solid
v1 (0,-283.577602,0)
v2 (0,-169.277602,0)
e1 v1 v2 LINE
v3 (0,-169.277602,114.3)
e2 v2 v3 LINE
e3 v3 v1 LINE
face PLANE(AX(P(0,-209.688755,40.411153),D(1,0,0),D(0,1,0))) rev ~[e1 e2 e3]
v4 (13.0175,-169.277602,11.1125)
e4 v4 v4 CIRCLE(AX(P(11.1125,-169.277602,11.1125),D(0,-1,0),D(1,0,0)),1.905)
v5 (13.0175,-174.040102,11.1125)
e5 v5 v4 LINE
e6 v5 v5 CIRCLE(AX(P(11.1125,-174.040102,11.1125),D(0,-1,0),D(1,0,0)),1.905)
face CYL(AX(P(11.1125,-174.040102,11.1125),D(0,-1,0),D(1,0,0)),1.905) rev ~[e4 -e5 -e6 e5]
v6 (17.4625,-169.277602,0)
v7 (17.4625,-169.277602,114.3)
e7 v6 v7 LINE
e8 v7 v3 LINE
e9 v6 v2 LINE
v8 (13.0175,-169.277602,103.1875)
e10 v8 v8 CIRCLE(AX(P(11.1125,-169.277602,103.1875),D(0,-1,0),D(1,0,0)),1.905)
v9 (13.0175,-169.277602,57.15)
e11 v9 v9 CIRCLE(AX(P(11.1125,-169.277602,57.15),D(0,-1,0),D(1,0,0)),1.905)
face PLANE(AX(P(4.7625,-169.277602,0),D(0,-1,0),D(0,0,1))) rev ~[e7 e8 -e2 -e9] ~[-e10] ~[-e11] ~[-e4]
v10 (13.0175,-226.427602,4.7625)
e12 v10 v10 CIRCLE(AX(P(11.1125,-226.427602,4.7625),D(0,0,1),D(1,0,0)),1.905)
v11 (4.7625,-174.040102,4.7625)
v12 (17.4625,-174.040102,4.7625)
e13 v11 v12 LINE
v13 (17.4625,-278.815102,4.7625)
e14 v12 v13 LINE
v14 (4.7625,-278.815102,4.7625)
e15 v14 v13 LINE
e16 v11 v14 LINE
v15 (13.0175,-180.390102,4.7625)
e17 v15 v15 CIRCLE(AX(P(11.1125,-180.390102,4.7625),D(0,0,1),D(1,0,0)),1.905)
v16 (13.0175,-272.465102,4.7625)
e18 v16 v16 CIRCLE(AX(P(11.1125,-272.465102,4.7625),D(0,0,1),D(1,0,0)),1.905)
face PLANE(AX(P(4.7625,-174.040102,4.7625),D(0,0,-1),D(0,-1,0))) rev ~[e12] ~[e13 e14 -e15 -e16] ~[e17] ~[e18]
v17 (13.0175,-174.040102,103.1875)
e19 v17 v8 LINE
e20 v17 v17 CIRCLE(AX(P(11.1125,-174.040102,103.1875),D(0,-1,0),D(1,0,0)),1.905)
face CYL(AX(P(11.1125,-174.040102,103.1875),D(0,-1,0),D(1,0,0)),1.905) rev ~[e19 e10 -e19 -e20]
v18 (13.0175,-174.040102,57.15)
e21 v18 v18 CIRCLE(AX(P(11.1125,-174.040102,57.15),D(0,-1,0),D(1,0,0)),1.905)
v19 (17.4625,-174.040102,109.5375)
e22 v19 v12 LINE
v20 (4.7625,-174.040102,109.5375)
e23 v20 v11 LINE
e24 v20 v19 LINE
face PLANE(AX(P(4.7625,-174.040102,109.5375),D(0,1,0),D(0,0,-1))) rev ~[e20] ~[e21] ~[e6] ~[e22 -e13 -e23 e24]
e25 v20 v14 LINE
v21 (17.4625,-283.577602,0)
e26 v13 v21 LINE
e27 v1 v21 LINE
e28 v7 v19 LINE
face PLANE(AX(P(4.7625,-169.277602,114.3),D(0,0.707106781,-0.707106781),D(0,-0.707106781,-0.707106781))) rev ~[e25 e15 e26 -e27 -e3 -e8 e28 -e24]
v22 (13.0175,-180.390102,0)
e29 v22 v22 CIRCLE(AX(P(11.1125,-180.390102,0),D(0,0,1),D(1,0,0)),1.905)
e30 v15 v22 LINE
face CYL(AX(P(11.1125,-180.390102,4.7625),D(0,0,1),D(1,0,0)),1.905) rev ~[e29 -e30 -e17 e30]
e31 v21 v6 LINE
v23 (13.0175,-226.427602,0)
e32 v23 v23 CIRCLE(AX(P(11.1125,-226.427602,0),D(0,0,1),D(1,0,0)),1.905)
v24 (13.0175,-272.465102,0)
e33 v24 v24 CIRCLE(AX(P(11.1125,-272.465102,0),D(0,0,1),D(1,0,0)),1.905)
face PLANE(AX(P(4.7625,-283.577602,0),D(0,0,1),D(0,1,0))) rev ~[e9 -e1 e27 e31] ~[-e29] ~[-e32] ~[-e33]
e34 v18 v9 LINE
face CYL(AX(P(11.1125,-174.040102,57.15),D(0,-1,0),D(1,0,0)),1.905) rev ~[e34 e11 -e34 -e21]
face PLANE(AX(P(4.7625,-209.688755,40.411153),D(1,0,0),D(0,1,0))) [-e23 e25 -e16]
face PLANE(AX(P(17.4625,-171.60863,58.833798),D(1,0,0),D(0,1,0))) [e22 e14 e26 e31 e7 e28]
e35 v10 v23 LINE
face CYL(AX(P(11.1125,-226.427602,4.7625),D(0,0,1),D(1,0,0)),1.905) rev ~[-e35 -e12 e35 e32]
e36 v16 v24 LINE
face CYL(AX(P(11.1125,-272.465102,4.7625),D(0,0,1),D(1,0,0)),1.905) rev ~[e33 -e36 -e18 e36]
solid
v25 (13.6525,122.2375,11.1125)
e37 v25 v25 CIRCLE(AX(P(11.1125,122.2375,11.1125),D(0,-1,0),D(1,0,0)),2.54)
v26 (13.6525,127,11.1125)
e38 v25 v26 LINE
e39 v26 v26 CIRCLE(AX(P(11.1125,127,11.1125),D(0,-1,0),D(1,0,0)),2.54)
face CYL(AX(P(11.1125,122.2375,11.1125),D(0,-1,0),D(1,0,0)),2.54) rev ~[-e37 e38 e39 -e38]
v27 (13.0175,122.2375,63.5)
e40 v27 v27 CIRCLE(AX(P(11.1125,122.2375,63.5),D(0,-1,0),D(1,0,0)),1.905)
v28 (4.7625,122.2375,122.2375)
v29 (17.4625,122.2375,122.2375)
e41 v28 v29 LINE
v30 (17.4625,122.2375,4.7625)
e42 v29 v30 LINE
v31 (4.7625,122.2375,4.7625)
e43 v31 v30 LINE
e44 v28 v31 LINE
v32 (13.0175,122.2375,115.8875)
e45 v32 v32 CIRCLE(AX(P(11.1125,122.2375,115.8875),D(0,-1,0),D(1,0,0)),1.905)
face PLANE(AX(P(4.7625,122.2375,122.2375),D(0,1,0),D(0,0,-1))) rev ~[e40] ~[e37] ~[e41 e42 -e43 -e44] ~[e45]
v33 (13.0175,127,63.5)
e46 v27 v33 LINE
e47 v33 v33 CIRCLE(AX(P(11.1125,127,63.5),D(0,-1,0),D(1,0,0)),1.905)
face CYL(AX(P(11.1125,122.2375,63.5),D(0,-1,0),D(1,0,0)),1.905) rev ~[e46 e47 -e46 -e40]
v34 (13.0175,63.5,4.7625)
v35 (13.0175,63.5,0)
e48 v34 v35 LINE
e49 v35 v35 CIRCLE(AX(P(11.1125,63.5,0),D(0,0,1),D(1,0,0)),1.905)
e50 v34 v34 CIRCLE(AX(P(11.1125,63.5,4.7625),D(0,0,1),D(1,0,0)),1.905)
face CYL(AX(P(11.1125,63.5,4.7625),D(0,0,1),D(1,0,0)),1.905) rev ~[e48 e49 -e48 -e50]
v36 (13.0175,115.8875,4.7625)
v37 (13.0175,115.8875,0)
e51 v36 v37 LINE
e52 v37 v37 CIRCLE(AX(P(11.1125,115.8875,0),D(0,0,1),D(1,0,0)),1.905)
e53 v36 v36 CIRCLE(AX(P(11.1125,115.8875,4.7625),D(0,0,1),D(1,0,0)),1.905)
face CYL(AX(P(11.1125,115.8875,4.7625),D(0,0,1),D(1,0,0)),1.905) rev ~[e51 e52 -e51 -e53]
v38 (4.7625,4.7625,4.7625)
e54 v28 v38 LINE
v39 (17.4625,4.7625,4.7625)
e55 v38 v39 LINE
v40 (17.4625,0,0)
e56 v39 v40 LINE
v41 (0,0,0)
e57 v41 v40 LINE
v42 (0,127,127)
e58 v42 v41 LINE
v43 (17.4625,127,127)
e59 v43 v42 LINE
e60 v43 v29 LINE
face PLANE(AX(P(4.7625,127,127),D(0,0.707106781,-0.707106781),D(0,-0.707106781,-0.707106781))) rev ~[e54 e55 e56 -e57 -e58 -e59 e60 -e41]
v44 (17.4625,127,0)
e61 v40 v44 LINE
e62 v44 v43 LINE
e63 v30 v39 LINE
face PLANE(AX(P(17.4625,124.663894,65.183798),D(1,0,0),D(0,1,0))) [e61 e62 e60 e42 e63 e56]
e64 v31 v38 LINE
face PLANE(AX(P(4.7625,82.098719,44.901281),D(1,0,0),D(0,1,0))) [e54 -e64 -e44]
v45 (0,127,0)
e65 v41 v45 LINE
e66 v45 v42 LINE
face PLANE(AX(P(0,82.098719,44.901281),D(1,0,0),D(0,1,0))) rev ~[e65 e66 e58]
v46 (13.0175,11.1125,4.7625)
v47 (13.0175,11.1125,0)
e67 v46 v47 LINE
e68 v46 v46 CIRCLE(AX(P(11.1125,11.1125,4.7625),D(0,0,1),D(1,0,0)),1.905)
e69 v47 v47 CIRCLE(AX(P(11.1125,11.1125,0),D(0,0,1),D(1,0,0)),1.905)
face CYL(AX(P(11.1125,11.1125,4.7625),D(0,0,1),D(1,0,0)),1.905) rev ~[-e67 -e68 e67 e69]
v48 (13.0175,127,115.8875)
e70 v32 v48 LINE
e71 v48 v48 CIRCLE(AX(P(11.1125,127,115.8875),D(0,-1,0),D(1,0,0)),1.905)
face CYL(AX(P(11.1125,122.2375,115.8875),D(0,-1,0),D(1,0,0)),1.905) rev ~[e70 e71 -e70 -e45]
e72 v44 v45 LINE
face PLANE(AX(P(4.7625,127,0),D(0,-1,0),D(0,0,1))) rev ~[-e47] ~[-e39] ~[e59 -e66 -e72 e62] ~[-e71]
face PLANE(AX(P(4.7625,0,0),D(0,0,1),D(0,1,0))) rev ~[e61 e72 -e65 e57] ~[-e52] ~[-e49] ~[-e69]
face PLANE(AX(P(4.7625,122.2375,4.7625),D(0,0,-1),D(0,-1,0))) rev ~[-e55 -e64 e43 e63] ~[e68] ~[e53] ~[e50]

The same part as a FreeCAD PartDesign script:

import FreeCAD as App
import Part
import Sketcher
from FreeCAD import Vector
Q = App.Units.Quantity


def add_polygon(sketch, points):
    """Adds a closed chain of lines whose ends are joined by coincident constraints."""
    first, n = sketch.GeometryCount, len(points)
    for a, b in zip(points, points[1:] + points[:1]):
        sketch.addGeometry(Part.LineSegment(App.Vector(*a, 0), App.Vector(*b, 0)), False)
    for i in range(n):
        sketch.addConstraint(Sketcher.Constraint("Coincident", first + i, 2, first + (i + 1) % n, 1))

doc = App.newDocument("Part")
params = doc.addObject("Spreadsheet::Sheet", "Params")
for row, (alias, value) in enumerate([
    ("sketch1_width", "5 in"),
    ("pad1_length", "0.1875 in"),
    ("sketch2_width", "5 in"),
    ("sketch2_width2", "4.625 in"),
    ("pad2_length", "0.5 in"),
    ("sketch3_diameter", "0.15 in"),
    ("sketch4_diameter", "0.2 in"),
    ("sketch4_diameter2", "0.15 in"),
    ("sketch5_width", "4.5 in"),
    ("pad3_length", "0.1875 in"),
    ("sketch6_width", "4.5 in"),
    ("sketch6_width2", "4.125 in"),
    ("pad4_length", "0.5 in"),
    ("sketch7_diameter", "0.15 in"),
    ("sketch8_diameter", "0.15 in"),
], start=1):
    params.set(f"A{row}", alias)
    params.set(f"B{row}", "=" + value)
    params.setAlias(f"B{row}", alias)

body = doc.addObject("PartDesign::Body", "Body")

# Sketch on YZ plane
sketch1 = doc.addObject("Sketcher::SketchObject", "Sketch")
body.addObject(sketch1)
sketch1.AttachmentSupport = (doc.YZ_Plane, [""])
sketch1.MapMode = "FlatFace"
add_polygon(sketch1, [(127, 127), (0, 0), (127, 0)])  # lines 0-2
sketch1.addConstraint([
    Sketcher.Constraint("Horizontal", 1),
    Sketcher.Constraint("Vertical", 2),
    Sketcher.Constraint("Coincident", 0, 2, -1, 1),
    Sketcher.Constraint("Equal", 1, 2),
    Sketcher.Constraint("DistanceX", 1, 1, 1, 2, Q("5 in")),
])
sketch1.setExpression("Constraints[7]", "Params.sketch1_width")
pad1 = doc.addObject("PartDesign::Pad", "Pad")
body.addObject(pad1)
pad1.Profile = sketch1
pad1.setExpression("Length", "Params.pad1_length")

# Sketch on YZ plane
sketch2 = doc.addObject("Sketcher::SketchObject", "Sketch001")
body.addObject(sketch2)
sketch2.AttachmentSupport = (doc.YZ_Plane, [""])
sketch2.MapMode = "FlatFace"
sketch2.AttachmentOffset = App.Placement(Vector(0, 0, 0.1875 * 25.4), App.Rotation())
add_polygon(sketch2, [(127, 127), (122, 122), (122, 5), (5, 5), (0, 0), (127, 0)])  # lines 0-5
sketch2.addConstraint([
    Sketcher.Constraint("Vertical", 1),
    Sketcher.Constraint("Horizontal", 2),
    Sketcher.Constraint("Horizontal", 4),
    Sketcher.Constraint("Vertical", 5),
    Sketcher.Constraint("Coincident", 3, 2, -1, 1),
    Sketcher.Constraint("Parallel", 0, 3),
    Sketcher.Constraint("Equal", 2, 1),
    Sketcher.Constraint("Equal", 4, 5),
    Sketcher.Constraint("Equal", 0, 3),
    Sketcher.Constraint("DistanceX", 4, 1, 4, 2, Q("5 in")),
    Sketcher.Constraint("DistanceX", 2, 2, 2, 1, Q("4.625 in")),
])
sketch2.setExpression("Constraints[15]", "Params.sketch2_width")
sketch2.setExpression("Constraints[16]", "Params.sketch2_width2")
pad2 = doc.addObject("PartDesign::Pad", "Pad001")
body.addObject(pad2)
pad2.Profile = sketch2
pad2.setExpression("Length", "Params.pad2_length")

# Sketch on XY plane
sketch3 = doc.addObject("Sketcher::SketchObject", "Sketch002")
body.addObject(sketch3)
sketch3.AttachmentSupport = (doc.XY_Plane, [""])
sketch3.MapMode = "FlatFace"
sketch3.AttachmentOffset = App.Placement(Vector(0, 0, 0.1875 * 25.4), App.Rotation())
sketch3.addGeometry([
    Part.Circle(Vector(11.1, 11.1, 0), Vector(0, 0, 1), 1.9),
    Part.Circle(Vector(11.1, 115.9, 0), Vector(0, 0, 1), 1.9),
    Part.Circle(Vector(11.1, 63.5, 0), Vector(0, 0, 1), 1.9),
], False)
sketch3.addConstraint([
    Sketcher.Constraint("Equal", 0, 1),
    Sketcher.Constraint("Equal", 1, 2),
    Sketcher.Constraint("Vertical", 0, 3, 1, 3),
    Sketcher.Constraint("Vertical", 1, 3, 2, 3),
    Sketcher.Constraint("Diameter", 0, Q("0.15 in")),
    Sketcher.Constraint("DistanceY", -1, 1, 2, 3, Q("2.5 in")),
    Sketcher.Constraint("DistanceX", -1, 1, 0, 3, Q("0.4375 in")),
    Sketcher.Constraint("DistanceY", -1, 1, 0, 3, Q("0.4375 in")),
    Sketcher.Constraint("DistanceY", -1, 1, 1, 3, Q("4.5625 in")),
])
sketch3.setExpression("Constraints[4]", "Params.sketch3_diameter")
pocket1 = doc.addObject("PartDesign::Pocket", "Pocket")
body.addObject(pocket1)
pocket1.Profile = sketch3
pocket1.Type = "ThroughAll"

# Sketch on XZ plane
sketch4 = doc.addObject("Sketcher::SketchObject", "Sketch003")
body.addObject(sketch4)
sketch4.AttachmentSupport = (doc.XZ_Plane, [""])
sketch4.MapMode = "FlatFace"
sketch4.AttachmentOffset = App.Placement(Vector(0, 0, -4.8125 * 25.4), App.Rotation())
sketch4.addGeometry([
    Part.Circle(Vector(11.1, 115.9, 0), Vector(0, 0, 1), 1.9),
    Part.Circle(Vector(11.1, 11.1, 0), Vector(0, 0, 1), 2.5),
    Part.Circle(Vector(11.1, 63.5, 0), Vector(0, 0, 1), 1.9),
], False)
sketch4.addConstraint([
    Sketcher.Constraint("Equal", 0, 2),
    Sketcher.Constraint("Vertical", 0, 3, 1, 3),
    Sketcher.Constraint("Vertical", 1, 3, 2, 3),
    Sketcher.Constraint("Diameter", 1, Q("0.2 in")),
    Sketcher.Constraint("Diameter", 0, Q("0.15 in")),
    Sketcher.Constraint("DistanceY", -1, 1, 2, 3, Q("2.5 in")),
    Sketcher.Constraint("DistanceX", -1, 1, 0, 3, Q("0.4375 in")),
    Sketcher.Constraint("DistanceY", -1, 1, 0, 3, Q("4.5625 in")),
    Sketcher.Constraint("DistanceY", -1, 1, 1, 3, Q("0.4375 in")),
])
sketch4.setExpression("Constraints[3]", "Params.sketch4_diameter")
sketch4.setExpression("Constraints[4]", "Params.sketch4_diameter2")
pocket2 = doc.addObject("PartDesign::Pocket", "Pocket001")
body.addObject(pocket2)
pocket2.Profile = sketch4
pocket2.Type = "ThroughAll"
body2 = doc.addObject("PartDesign::Body", "Body001")

# Sketch on YZ plane
sketch5 = doc.addObject("Sketcher::SketchObject", "Sketch004")
body2.addObject(sketch5)
sketch5.AttachmentSupport = (doc.getObject("YZ_Plane001"), [""])
sketch5.MapMode = "FlatFace"
add_polygon(sketch5, [(-169, 114), (-284, 0), (-169, 0)])  # lines 0-2
sketch5.addConstraint([
    Sketcher.Constraint("Horizontal", 1),
    Sketcher.Constraint("Vertical", 2),
    Sketcher.Constraint("PointOnObject", 0, 2, -1),
    Sketcher.Constraint("Equal", 1, 2),
    Sketcher.Constraint("DistanceX", 1, 1, 1, 2, Q("4.5 in")),
    Sketcher.Constraint("DistanceX", 0, 2, -1, 1, 283.577602),
])
sketch5.setExpression("Constraints[7]", "Params.sketch5_width")
pad3 = doc.addObject("PartDesign::Pad", "Pad002")
body2.addObject(pad3)
pad3.Profile = sketch5
pad3.setExpression("Length", "Params.pad3_length")

# Sketch on YZ plane
sketch6 = doc.addObject("Sketcher::SketchObject", "Sketch005")
body2.addObject(sketch6)
sketch6.AttachmentSupport = (doc.getObject("YZ_Plane001"), [""])
sketch6.MapMode = "FlatFace"
sketch6.AttachmentOffset = App.Placement(Vector(0, 0, 0.1875 * 25.4), App.Rotation())
add_polygon(sketch6, [(-174, 110), (-174, 5), (-279, 5), (-284, 0), (-169, 0), (-169, 114)])  # lines 0-5
sketch6.addConstraint([
    Sketcher.Constraint("Vertical", 0),
    Sketcher.Constraint("Horizontal", 1),
    Sketcher.Constraint("Horizontal", 3),
    Sketcher.Constraint("Vertical", 4),
    Sketcher.Constraint("PointOnObject", 2, 2, -1),
    Sketcher.Constraint("Parallel", 2, 5),
    Sketcher.Constraint("Equal", 1, 0),
    Sketcher.Constraint("Equal", 3, 4),
    Sketcher.Constraint("Equal", 2, 5),
    Sketcher.Constraint("DistanceX", 3, 1, 3, 2, Q("4.5 in")),
    Sketcher.Constraint("DistanceX", 1, 2, 1, 1, Q("4.125 in")),
    Sketcher.Constraint("DistanceX", 0, 2, -1, 1, 174.040102),
])
sketch6.setExpression("Constraints[15]", "Params.sketch6_width")
sketch6.setExpression("Constraints[16]", "Params.sketch6_width2")
pad4 = doc.addObject("PartDesign::Pad", "Pad003")
body2.addObject(pad4)
pad4.Profile = sketch6
pad4.setExpression("Length", "Params.pad4_length")

# Sketch on XY plane
sketch7 = doc.addObject("Sketcher::SketchObject", "Sketch006")
body2.addObject(sketch7)
sketch7.AttachmentSupport = (doc.getObject("XY_Plane001"), [""])
sketch7.MapMode = "FlatFace"
sketch7.AttachmentOffset = App.Placement(Vector(0, 0, 0.1875 * 25.4), App.Rotation())
sketch7.addGeometry([
    Part.Circle(Vector(11.1, -272.5, 0), Vector(0, 0, 1), 1.9),
    Part.Circle(Vector(11.1, -226.4, 0), Vector(0, 0, 1), 1.9),
    Part.Circle(Vector(11.1, -180.4, 0), Vector(0, 0, 1), 1.9),
], False)
sketch7.addConstraint([
    Sketcher.Constraint("Equal", 0, 1),
    Sketcher.Constraint("Equal", 1, 2),
    Sketcher.Constraint("Vertical", 0, 3, 1, 3),
    Sketcher.Constraint("Vertical", 1, 3, 2, 3),
    Sketcher.Constraint("Diameter", 0, Q("0.15 in")),
    Sketcher.Constraint("DistanceX", -1, 1, 0, 3, Q("0.4375 in")),
    Sketcher.Constraint("DistanceY", 0, 3, 1, 3, Q("1.8125 in")),
    Sketcher.Constraint("DistanceY", 1, 3, 2, 3, Q("1.8125 in")),
    Sketcher.Constraint("DistanceY", 0, 3, -1, 1, 272.465102),
])
sketch7.setExpression("Constraints[4]", "Params.sketch7_diameter")
pocket3 = doc.addObject("PartDesign::Pocket", "Pocket002")
body2.addObject(pocket3)
pocket3.Profile = sketch7
pocket3.Type = "ThroughAll"

# Sketch on XZ plane
sketch8 = doc.addObject("Sketcher::SketchObject", "Sketch007")
body2.addObject(sketch8)
sketch8.AttachmentSupport = (doc.getObject("XZ_Plane001"), [""])
sketch8.MapMode = "FlatFace"
sketch8.AttachmentOffset = App.Placement(Vector(0, 0, 174.040102), App.Rotation())
sketch8.addGeometry([
    Part.Circle(Vector(11.1, 103.2, 0), Vector(0, 0, 1), 1.9),
    Part.Circle(Vector(11.1, 11.1, 0), Vector(0, 0, 1), 1.9),
    Part.Circle(Vector(11.1, 57.1, 0), Vector(0, 0, 1), 1.9),
], False)
sketch8.addConstraint([
    Sketcher.Constraint("Equal", 0, 1),
    Sketcher.Constraint("Equal", 1, 2),
    Sketcher.Constraint("Vertical", 0, 3, 1, 3),
    Sketcher.Constraint("Vertical", 1, 3, 2, 3),
    Sketcher.Constraint("Diameter", 0, Q("0.15 in")),
    Sketcher.Constraint("DistanceY", -1, 1, 2, 3, Q("2.25 in")),
    Sketcher.Constraint("DistanceX", -1, 1, 0, 3, Q("0.4375 in")),
    Sketcher.Constraint("DistanceY", -1, 1, 0, 3, Q("4.0625 in")),
    Sketcher.Constraint("DistanceY", -1, 1, 1, 3, Q("0.4375 in")),
])
sketch8.setExpression("Constraints[4]", "Params.sketch8_diameter")
pocket4 = doc.addObject("PartDesign::Pocket", "Pocket003")
body2.addObject(pocket4)
pocket4.Profile = sketch8
pocket4.Type = "ThroughAll"

doc.recompute()
